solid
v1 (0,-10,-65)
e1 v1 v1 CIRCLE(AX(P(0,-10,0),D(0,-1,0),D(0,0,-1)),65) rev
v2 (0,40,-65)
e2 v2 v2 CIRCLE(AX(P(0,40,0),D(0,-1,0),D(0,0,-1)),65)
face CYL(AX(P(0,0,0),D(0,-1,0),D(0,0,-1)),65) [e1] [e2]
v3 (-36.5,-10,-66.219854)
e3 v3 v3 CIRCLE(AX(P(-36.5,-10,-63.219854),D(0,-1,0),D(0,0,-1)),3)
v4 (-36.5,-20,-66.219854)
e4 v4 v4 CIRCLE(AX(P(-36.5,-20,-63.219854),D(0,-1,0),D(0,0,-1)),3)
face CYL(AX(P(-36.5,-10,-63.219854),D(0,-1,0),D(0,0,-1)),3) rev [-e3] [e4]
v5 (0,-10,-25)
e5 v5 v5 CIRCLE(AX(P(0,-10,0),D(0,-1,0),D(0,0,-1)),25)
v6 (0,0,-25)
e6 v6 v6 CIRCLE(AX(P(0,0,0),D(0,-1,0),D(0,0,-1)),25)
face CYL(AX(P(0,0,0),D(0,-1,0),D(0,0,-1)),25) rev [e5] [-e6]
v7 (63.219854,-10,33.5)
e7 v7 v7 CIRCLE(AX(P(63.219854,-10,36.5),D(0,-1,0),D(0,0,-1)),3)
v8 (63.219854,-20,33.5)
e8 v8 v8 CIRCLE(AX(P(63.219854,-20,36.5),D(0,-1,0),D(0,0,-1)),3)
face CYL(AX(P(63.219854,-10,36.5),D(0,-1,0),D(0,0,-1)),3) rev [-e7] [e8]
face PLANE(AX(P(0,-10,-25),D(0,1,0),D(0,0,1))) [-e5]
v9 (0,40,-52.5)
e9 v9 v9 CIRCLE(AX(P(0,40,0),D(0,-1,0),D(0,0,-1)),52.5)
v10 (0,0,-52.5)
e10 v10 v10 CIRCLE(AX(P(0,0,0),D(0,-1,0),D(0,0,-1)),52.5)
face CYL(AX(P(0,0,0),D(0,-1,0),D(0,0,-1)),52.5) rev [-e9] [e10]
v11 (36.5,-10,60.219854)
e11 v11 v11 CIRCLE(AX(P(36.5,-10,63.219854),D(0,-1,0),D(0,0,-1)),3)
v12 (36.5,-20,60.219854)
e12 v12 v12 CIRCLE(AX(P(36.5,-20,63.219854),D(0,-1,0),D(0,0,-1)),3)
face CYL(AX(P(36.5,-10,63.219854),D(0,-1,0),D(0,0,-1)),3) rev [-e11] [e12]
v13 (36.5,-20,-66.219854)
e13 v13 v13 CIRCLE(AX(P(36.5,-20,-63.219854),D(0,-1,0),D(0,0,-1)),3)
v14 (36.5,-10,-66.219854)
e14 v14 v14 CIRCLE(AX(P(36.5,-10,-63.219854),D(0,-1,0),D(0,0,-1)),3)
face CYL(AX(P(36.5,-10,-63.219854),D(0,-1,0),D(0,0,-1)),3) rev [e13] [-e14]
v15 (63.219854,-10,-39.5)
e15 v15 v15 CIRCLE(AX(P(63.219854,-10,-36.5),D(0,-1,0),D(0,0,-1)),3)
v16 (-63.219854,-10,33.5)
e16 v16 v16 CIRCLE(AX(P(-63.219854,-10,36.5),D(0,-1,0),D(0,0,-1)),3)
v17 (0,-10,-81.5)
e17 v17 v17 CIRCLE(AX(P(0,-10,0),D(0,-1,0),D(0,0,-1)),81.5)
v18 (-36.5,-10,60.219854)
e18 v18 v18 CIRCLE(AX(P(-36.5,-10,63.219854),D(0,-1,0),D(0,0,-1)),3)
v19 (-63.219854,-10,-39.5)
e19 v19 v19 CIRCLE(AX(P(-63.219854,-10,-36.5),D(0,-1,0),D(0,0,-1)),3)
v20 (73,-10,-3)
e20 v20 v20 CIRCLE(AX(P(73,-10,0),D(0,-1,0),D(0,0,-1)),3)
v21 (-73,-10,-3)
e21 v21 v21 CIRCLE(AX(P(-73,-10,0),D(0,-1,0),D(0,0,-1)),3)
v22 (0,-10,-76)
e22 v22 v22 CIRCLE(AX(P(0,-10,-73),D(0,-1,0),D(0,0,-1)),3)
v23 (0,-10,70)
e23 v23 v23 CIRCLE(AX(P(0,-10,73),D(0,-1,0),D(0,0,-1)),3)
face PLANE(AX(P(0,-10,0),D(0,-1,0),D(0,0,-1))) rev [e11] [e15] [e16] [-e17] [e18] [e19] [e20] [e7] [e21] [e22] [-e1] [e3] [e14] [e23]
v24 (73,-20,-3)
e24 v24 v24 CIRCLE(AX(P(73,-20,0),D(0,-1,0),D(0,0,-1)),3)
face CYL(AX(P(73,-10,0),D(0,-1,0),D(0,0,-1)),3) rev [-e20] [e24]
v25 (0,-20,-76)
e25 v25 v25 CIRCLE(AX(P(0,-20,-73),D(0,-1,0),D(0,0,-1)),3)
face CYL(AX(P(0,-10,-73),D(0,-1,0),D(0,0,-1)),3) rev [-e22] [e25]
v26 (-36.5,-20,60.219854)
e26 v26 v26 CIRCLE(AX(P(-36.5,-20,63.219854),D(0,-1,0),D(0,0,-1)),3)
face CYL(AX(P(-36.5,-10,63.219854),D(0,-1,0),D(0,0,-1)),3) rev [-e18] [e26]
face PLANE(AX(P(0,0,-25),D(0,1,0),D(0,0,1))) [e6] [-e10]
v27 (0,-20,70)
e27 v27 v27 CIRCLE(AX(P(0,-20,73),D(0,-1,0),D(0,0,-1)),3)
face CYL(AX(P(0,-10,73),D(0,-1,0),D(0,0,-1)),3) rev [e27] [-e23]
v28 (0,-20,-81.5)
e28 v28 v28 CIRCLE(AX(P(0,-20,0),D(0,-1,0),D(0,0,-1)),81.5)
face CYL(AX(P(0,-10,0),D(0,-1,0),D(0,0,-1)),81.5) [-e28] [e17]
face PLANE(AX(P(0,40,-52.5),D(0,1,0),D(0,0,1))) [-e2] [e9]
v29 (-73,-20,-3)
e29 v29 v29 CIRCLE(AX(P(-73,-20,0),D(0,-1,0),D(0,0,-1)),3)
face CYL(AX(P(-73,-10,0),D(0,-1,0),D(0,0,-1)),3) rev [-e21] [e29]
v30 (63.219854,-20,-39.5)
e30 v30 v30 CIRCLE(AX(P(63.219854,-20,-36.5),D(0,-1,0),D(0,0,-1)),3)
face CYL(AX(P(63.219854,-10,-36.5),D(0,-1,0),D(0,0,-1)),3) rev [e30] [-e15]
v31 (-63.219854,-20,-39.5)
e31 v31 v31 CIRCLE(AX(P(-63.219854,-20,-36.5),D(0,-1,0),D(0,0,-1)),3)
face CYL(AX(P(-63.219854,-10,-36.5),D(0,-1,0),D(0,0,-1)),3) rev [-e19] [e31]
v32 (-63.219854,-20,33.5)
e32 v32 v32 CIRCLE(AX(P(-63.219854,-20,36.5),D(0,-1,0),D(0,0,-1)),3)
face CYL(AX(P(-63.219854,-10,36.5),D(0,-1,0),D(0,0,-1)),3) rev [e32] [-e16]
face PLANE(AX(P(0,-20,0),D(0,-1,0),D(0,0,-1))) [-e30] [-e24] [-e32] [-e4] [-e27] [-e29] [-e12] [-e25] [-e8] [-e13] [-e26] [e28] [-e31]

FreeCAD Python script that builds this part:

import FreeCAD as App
import Part
import Sketcher
from FreeCAD import Vector
Q = App.Units.Quantity


def add_polygon(sketch, points):
    """Adds a closed chain of lines whose ends are joined by coincident constraints."""
    first, n = sketch.GeometryCount, len(points)
    for a, b in zip(points, points[1:] + points[:1]):
        sketch.addGeometry(Part.LineSegment(App.Vector(*a, 0), App.Vector(*b, 0)), False)
    for i in range(n):
        sketch.addConstraint(Sketcher.Constraint("Coincident", first + i, 2, first + (i + 1) % n, 1))

doc = App.newDocument("Part")
params = doc.addObject("Spreadsheet::Sheet", "Params")
for row, (alias, value) in enumerate([
    ("sketch1_width", "10 mm"),
    ("sketch1_width2", "60 mm"),
    ("sketch1_height", "25 mm"),
    ("sketch1_height2", "65 mm"),
    ("sketch1_height3", "12.5 mm"),
    ("revolution_angle", "360 deg"),
    ("sketch2_diameter", "163 mm"),
    ("sketch2_diameter2", "6 mm"),
    ("pad1_length", "10 mm"),
], start=1):
    params.set(f"A{row}", alias)
    params.set(f"B{row}", "=" + value)
    params.setAlias(f"B{row}", alias)

body = doc.addObject("PartDesign::Body", "Body")

sketch1 = body.newObject("Sketcher::SketchObject", "Sketch")
sketch1.AttachmentSupport = (doc.getObject("YZ_Plane"), [""])
sketch1.MapMode = "FlatFace"
add_polygon(sketch1, [(0, -25), (-10, -25), (-10, 0), (-20, 0), (-20, -65), (40, -65), (40, -52), (0, -52)])
sketch1.addConstraint(Sketcher.Constraint("Horizontal", 0))
sketch1.addConstraint(Sketcher.Constraint("Vertical", 1))
sketch1.addConstraint(Sketcher.Constraint("Horizontal", 2))
sketch1.addConstraint(Sketcher.Constraint("Vertical", 3))
sketch1.addConstraint(Sketcher.Constraint("Horizontal", 4))
sketch1.addConstraint(Sketcher.Constraint("Vertical", 5))
sketch1.addConstraint(Sketcher.Constraint("Horizontal", 6))
sketch1.addConstraint(Sketcher.Constraint("Vertical", 7))
sketch1.addConstraint(Sketcher.Constraint("PointOnObject", 1, 2, -1))
sketch1.addConstraint(Sketcher.Constraint("PointOnObject", 6, 2, -2))
sketch1.addConstraint(Sketcher.Constraint("Equal", 0, 2))
sketch1.addConstraint(Sketcher.Constraint("DistanceX", 0, 2, 0, 1, Q("10 mm")))
sketch1.addConstraint(Sketcher.Constraint("DistanceX", 4, 1, 4, 2, Q("60 mm")))
sketch1.addConstraint(Sketcher.Constraint("DistanceY", 1, 1, 1, 2, Q("25 mm")))
sketch1.addConstraint(Sketcher.Constraint("DistanceY", 3, 2, 3, 1, Q("65 mm")))
sketch1.addConstraint(Sketcher.Constraint("DistanceY", 5, 1, 5, 2, Q("12.5 mm")))
sketch1.setExpression("Constraints[19]", "Params.sketch1_width")
sketch1.setExpression("Constraints[20]", "Params.sketch1_width2")
sketch1.setExpression("Constraints[21]", "Params.sketch1_height")
sketch1.setExpression("Constraints[22]", "Params.sketch1_height2")
sketch1.setExpression("Constraints[23]", "Params.sketch1_height3")
revolution = body.newObject("PartDesign::Revolution", "Revolution")
revolution.Profile = sketch1
revolution.ReferenceAxis = (sketch1, ["H_Axis"])
revolution.setExpression("Angle", "Params.revolution_angle")

sketch2 = body.newObject("Sketcher::SketchObject", "Sketch001")
sketch2.AttachmentSupport = (doc.getObject("XZ_Plane"), [""])
sketch2.MapMode = "FlatFace"
sketch2.AttachmentOffset = App.Placement(Vector(0, 0, 20), App.Rotation())
sketch2.addGeometry(Part.Circle(Vector(0, 0, 0), Vector(0, 0, 1), 81.5), False)
sketch2.addGeometry(Part.Circle(Vector(63.2, 36.5, 0), Vector(0, 0, 1), 3), False)
sketch2.addGeometry(Part.Circle(Vector(36.5, 63.2, 0), Vector(0, 0, 1), 3), False)
sketch2.addGeometry(Part.Circle(Vector(0, 73, 0), Vector(0, 0, 1), 3), False)
sketch2.addGeometry(Part.Circle(Vector(73, 0, 0), Vector(0, 0, 1), 3), False)
sketch2.addGeometry(Part.Circle(Vector(63.2, -36.5, 0), Vector(0, 0, 1), 3), False)
sketch2.addGeometry(Part.Circle(Vector(36.5, -63.2, 0), Vector(0, 0, 1), 3), False)
sketch2.addGeometry(Part.Circle(Vector(-36.5, 63.2, 0), Vector(0, 0, 1), 3), False)
sketch2.addGeometry(Part.Circle(Vector(-63.2, 36.5, 0), Vector(0, 0, 1), 3), False)
sketch2.addGeometry(Part.Circle(Vector(-73, 0, 0), Vector(0, 0, 1), 3), False)
sketch2.addGeometry(Part.Circle(Vector(0, -73, 0), Vector(0, 0, 1), 3), False)
sketch2.addGeometry(Part.Circle(Vector(-36.5, -63.2, 0), Vector(0, 0, 1), 3), False)
sketch2.addGeometry(Part.Circle(Vector(-63.2, -36.5, 0), Vector(0, 0, 1), 3), False)
sketch2.addConstraint(Sketcher.Constraint("Coincident", 0, 3, -1, 1))
sketch2.addConstraint(Sketcher.Constraint("Equal", 1, 2))
sketch2.addConstraint(Sketcher.Constraint("Equal", 2, 3))
sketch2.addConstraint(Sketcher.Constraint("Equal", 3, 4))
sketch2.addConstraint(Sketcher.Constraint("Equal", 4, 5))
sketch2.addConstraint(Sketcher.Constraint("Equal", 5, 6))
sketch2.addConstraint(Sketcher.Constraint("Equal", 6, 7))
sketch2.addConstraint(Sketcher.Constraint("Equal", 7, 8))
sketch2.addConstraint(Sketcher.Constraint("Equal", 8, 9))
sketch2.addConstraint(Sketcher.Constraint("Equal", 9, 10))
sketch2.addConstraint(Sketcher.Constraint("Equal", 10, 11))
sketch2.addConstraint(Sketcher.Constraint("Equal", 11, 12))
sketch2.addConstraint(Sketcher.Constraint("Symmetric", 6, 3, 7, 3, -1, 1))
sketch2.addConstraint(Sketcher.Constraint("Symmetric", 5, 3, 8, 3, -1, 1))
sketch2.addConstraint(Sketcher.Constraint("Symmetric", 4, 3, 9, 3, -1, 1))
sketch2.addConstraint(Sketcher.Constraint("Symmetric", 3, 3, 10, 3, -1, 1))
sketch2.addConstraint(Sketcher.Constraint("Symmetric", 2, 3, 11, 3, -1, 1))
sketch2.addConstraint(Sketcher.Constraint("Symmetric", 1, 3, 12, 3, -1, 1))
sketch2.addConstraint(Sketcher.Constraint("Symmetric", 2, 3, 7, 3, -2))
sketch2.addConstraint(Sketcher.Constraint("Symmetric", 1, 3, 8, 3, -2))
sketch2.addConstraint(Sketcher.Constraint("PointOnObject", 3, 3, -2))
sketch2.addConstraint(Sketcher.Constraint("PointOnObject", 4, 3, -1))
sketch2.addConstraint(Sketcher.Constraint("Diameter", 0, Q("163 mm")))
sketch2.addConstraint(Sketcher.Constraint("Diameter", 1, Q("6 mm")))
sketch2.addConstraint(Sketcher.Constraint("DistanceY", -1, 1, 3, 3, Q("73 mm")))
sketch2.addConstraint(Sketcher.Constraint("DistanceX", -1, 1, 4, 3, Q("73 mm")))
sketch2.addConstraint(Sketcher.Constraint("DistanceY", 5, 3, 1, 3, Q("73 mm")))
sketch2.addConstraint(Sketcher.Constraint("DistanceX", 7, 3, 2, 3, Q("73 mm")))
sketch2.addConstraint(Sketcher.Constraint("DistanceY", 6, 3, 2, 3, Q("126.439709 mm")))
sketch2.addConstraint(Sketcher.Constraint("DistanceX", 8, 3, 1, 3, Q("126.439709 mm")))
sketch2.setExpression("Constraints[22]", "Params.sketch2_diameter")
sketch2.setExpression("Constraints[23]", "Params.sketch2_diameter2")
pad1 = body.newObject("PartDesign::Pad", "Pad")
pad1.Profile = sketch2
pad1.setExpression("Length", "Params.pad1_length")
pad1.Reversed = True

doc.recompute()
